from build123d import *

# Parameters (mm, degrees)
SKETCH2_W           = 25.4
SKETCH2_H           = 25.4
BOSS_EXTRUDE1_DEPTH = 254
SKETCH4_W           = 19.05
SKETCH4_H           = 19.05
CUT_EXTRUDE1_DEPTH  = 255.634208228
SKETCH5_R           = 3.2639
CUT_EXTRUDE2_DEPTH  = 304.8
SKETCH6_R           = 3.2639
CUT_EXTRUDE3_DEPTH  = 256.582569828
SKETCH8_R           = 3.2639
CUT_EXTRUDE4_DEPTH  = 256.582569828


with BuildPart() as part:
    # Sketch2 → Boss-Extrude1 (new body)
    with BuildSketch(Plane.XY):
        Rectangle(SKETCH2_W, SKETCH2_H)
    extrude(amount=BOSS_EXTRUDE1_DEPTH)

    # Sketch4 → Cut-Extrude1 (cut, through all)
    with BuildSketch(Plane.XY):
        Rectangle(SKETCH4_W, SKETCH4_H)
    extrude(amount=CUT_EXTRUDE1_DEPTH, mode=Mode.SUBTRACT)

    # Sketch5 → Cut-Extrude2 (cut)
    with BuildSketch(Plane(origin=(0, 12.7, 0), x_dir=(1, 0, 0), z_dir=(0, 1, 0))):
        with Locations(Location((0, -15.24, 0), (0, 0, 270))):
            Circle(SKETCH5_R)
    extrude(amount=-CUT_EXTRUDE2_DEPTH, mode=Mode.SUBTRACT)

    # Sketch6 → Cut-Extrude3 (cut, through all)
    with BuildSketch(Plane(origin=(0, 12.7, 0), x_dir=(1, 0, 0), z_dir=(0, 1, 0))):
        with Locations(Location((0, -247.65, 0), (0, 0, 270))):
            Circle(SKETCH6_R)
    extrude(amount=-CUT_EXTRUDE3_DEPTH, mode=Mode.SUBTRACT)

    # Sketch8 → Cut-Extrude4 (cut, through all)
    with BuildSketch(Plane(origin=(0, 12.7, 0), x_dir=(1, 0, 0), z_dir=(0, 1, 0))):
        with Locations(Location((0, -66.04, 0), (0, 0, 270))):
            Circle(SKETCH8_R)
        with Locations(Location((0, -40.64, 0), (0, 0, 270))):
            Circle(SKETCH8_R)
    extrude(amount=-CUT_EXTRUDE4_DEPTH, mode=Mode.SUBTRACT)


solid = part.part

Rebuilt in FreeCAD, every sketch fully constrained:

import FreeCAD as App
import Part
import Sketcher
Q = App.Units.Quantity

doc = App.newDocument("Part")
body = doc.addObject("PartDesign::Body", "Body")

# Sketch on XY plane
sketch1 = body.newObject("Sketcher::SketchObject", "Sketch")
sketch1.AttachmentSupport = (doc.getObject("XY_Plane"), [""])
sketch1.MapMode = "FlatFace"
sketch1.addGeometry([
    Part.LineSegment(App.Vector(-13, 13, 0), App.Vector(-13, -13, 0)),
    Part.LineSegment(App.Vector(-13, -13, 0), App.Vector(13, -13, 0)),
    Part.LineSegment(App.Vector(13, -13, 0), App.Vector(13, 13, 0)),
    Part.LineSegment(App.Vector(13, 13, 0), App.Vector(-13, 13, 0)),
], False)
sketch1.addConstraint([
    Sketcher.Constraint("Coincident", 0, 2, 1, 1),
    Sketcher.Constraint("Coincident", 1, 2, 2, 1),
    Sketcher.Constraint("Coincident", 2, 2, 3, 1),
    Sketcher.Constraint("Coincident", 3, 2, 0, 1),
    Sketcher.Constraint("Vertical", 0),
    Sketcher.Constraint("Horizontal", 1),
    Sketcher.Constraint("Vertical", 2),
    Sketcher.Constraint("Horizontal", 3),
    Sketcher.Constraint("Symmetric", 0, 2, 2, 2, -1, 1),
    Sketcher.Constraint("Equal", 3, 0),
    Sketcher.Constraint("DistanceX", 1, 1, 1, 2, Q("1 in")),
])
pad1 = body.newObject("PartDesign::Pad", "Pad")
pad1.Profile = sketch1
pad1.Length = Q("10 in")

# Sketch on XY plane
sketch2 = body.newObject("Sketcher::SketchObject", "Sketch001")
sketch2.AttachmentSupport = (doc.getObject("XY_Plane"), [""])
sketch2.MapMode = "FlatFace"
sketch2.addGeometry([
    Part.LineSegment(App.Vector(-10, 10, 0), App.Vector(-10, -10, 0)),
    Part.LineSegment(App.Vector(-10, -10, 0), App.Vector(10, -10, 0)),
    Part.LineSegment(App.Vector(10, -10, 0), App.Vector(10, 10, 0)),
    Part.LineSegment(App.Vector(10, 10, 0), App.Vector(-10, 10, 0)),
], False)
sketch2.addConstraint([
    Sketcher.Constraint("Coincident", 0, 2, 1, 1),
    Sketcher.Constraint("Coincident", 1, 2, 2, 1),
    Sketcher.Constraint("Coincident", 2, 2, 3, 1),
    Sketcher.Constraint("Coincident", 3, 2, 0, 1),
    Sketcher.Constraint("Vertical", 0),
    Sketcher.Constraint("Horizontal", 1),
    Sketcher.Constraint("Vertical", 2),
    Sketcher.Constraint("Horizontal", 3),
    Sketcher.Constraint("Symmetric", 0, 2, 2, 2, -1, 1),
    Sketcher.Constraint("Equal", 3, 0),
    Sketcher.Constraint("DistanceX", 1, 1, 1, 2, Q("0.75 in")),
])
pocket1 = body.newObject("PartDesign::Pocket", "Pocket")
pocket1.Profile = sketch2
pocket1.Type = "ThroughAll"
pocket1.Reversed = True

# Sketch on XZ plane
sketch3 = body.newObject("Sketcher::SketchObject", "Sketch002")
sketch3.AttachmentSupport = (doc.getObject("XZ_Plane"), [""])
sketch3.MapMode = "FlatFace"
sketch3.AttachmentOffset = App.Placement(App.Vector(0, 0, -0.5 * 25.4), App.Rotation())
sketch3.addGeometry(Part.Circle(App.Vector(0, 15.2, 0), App.Vector(0, 0, 1), 3.3), False)
sketch3.addConstraint([
    Sketcher.Constraint("PointOnObject", 0, 3, -2),
    Sketcher.Constraint("Diameter", 0, Q("0.257 in")),
    Sketcher.Constraint("DistanceY", -1, 1, 0, 3, Q("0.6 in")),
])
pocket2 = body.newObject("PartDesign::Pocket", "Pocket001")
pocket2.Profile = sketch3
pocket2.Length = Q("12 in")
pocket2.Reversed = True

# Sketch on XZ plane
sketch4 = body.newObject("Sketcher::SketchObject", "Sketch003")
sketch4.AttachmentSupport = (doc.getObject("XZ_Plane"), [""])
sketch4.MapMode = "FlatFace"
sketch4.AttachmentOffset = App.Placement(App.Vector(0, 0, -0.5 * 25.4), App.Rotation())
sketch4.addGeometry(Part.Circle(App.Vector(0, 247.7, 0), App.Vector(0, 0, 1), 3.3), False)
sketch4.addConstraint([
    Sketcher.Constraint("PointOnObject", 0, 3, -2),
    Sketcher.Constraint("Diameter", 0, Q("0.257 in")),
    Sketcher.Constraint("DistanceY", -1, 1, 0, 3, Q("9.75 in")),
])
pocket3 = body.newObject("PartDesign::Pocket", "Pocket002")
pocket3.Profile = sketch4
pocket3.Type = "ThroughAll"
pocket3.Reversed = True

# Sketch on XZ plane
sketch5 = body.newObject("Sketcher::SketchObject", "Sketch004")
sketch5.AttachmentSupport = (doc.getObject("XZ_Plane"), [""])
sketch5.MapMode = "FlatFace"
sketch5.AttachmentOffset = App.Placement(App.Vector(0, 0, -0.5 * 25.4), App.Rotation())
sketch5.addGeometry([
    Part.Circle(App.Vector(0, 66, 0), App.Vector(0, 0, 1), 3.3),
    Part.Circle(App.Vector(0, 40.6, 0), App.Vector(0, 0, 1), 3.3),
], False)
sketch5.addConstraint([
    Sketcher.Constraint("Equal", 0, 1),
    Sketcher.Constraint("PointOnObject", 0, 3, -2),
    Sketcher.Constraint("PointOnObject", 1, 3, -2),
    Sketcher.Constraint("Diameter", 0, Q("0.257 in")),
    Sketcher.Constraint("DistanceY", 1, 3, 0, 3, Q("1 in")),
    Sketcher.Constraint("DistanceY", -1, 1, 0, 3, Q("2.6 in")),
])
pocket4 = body.newObject("PartDesign::Pocket", "Pocket003")
pocket4.Profile = sketch5
pocket4.Type = "ThroughAll"
pocket4.Reversed = True

doc.recompute()
